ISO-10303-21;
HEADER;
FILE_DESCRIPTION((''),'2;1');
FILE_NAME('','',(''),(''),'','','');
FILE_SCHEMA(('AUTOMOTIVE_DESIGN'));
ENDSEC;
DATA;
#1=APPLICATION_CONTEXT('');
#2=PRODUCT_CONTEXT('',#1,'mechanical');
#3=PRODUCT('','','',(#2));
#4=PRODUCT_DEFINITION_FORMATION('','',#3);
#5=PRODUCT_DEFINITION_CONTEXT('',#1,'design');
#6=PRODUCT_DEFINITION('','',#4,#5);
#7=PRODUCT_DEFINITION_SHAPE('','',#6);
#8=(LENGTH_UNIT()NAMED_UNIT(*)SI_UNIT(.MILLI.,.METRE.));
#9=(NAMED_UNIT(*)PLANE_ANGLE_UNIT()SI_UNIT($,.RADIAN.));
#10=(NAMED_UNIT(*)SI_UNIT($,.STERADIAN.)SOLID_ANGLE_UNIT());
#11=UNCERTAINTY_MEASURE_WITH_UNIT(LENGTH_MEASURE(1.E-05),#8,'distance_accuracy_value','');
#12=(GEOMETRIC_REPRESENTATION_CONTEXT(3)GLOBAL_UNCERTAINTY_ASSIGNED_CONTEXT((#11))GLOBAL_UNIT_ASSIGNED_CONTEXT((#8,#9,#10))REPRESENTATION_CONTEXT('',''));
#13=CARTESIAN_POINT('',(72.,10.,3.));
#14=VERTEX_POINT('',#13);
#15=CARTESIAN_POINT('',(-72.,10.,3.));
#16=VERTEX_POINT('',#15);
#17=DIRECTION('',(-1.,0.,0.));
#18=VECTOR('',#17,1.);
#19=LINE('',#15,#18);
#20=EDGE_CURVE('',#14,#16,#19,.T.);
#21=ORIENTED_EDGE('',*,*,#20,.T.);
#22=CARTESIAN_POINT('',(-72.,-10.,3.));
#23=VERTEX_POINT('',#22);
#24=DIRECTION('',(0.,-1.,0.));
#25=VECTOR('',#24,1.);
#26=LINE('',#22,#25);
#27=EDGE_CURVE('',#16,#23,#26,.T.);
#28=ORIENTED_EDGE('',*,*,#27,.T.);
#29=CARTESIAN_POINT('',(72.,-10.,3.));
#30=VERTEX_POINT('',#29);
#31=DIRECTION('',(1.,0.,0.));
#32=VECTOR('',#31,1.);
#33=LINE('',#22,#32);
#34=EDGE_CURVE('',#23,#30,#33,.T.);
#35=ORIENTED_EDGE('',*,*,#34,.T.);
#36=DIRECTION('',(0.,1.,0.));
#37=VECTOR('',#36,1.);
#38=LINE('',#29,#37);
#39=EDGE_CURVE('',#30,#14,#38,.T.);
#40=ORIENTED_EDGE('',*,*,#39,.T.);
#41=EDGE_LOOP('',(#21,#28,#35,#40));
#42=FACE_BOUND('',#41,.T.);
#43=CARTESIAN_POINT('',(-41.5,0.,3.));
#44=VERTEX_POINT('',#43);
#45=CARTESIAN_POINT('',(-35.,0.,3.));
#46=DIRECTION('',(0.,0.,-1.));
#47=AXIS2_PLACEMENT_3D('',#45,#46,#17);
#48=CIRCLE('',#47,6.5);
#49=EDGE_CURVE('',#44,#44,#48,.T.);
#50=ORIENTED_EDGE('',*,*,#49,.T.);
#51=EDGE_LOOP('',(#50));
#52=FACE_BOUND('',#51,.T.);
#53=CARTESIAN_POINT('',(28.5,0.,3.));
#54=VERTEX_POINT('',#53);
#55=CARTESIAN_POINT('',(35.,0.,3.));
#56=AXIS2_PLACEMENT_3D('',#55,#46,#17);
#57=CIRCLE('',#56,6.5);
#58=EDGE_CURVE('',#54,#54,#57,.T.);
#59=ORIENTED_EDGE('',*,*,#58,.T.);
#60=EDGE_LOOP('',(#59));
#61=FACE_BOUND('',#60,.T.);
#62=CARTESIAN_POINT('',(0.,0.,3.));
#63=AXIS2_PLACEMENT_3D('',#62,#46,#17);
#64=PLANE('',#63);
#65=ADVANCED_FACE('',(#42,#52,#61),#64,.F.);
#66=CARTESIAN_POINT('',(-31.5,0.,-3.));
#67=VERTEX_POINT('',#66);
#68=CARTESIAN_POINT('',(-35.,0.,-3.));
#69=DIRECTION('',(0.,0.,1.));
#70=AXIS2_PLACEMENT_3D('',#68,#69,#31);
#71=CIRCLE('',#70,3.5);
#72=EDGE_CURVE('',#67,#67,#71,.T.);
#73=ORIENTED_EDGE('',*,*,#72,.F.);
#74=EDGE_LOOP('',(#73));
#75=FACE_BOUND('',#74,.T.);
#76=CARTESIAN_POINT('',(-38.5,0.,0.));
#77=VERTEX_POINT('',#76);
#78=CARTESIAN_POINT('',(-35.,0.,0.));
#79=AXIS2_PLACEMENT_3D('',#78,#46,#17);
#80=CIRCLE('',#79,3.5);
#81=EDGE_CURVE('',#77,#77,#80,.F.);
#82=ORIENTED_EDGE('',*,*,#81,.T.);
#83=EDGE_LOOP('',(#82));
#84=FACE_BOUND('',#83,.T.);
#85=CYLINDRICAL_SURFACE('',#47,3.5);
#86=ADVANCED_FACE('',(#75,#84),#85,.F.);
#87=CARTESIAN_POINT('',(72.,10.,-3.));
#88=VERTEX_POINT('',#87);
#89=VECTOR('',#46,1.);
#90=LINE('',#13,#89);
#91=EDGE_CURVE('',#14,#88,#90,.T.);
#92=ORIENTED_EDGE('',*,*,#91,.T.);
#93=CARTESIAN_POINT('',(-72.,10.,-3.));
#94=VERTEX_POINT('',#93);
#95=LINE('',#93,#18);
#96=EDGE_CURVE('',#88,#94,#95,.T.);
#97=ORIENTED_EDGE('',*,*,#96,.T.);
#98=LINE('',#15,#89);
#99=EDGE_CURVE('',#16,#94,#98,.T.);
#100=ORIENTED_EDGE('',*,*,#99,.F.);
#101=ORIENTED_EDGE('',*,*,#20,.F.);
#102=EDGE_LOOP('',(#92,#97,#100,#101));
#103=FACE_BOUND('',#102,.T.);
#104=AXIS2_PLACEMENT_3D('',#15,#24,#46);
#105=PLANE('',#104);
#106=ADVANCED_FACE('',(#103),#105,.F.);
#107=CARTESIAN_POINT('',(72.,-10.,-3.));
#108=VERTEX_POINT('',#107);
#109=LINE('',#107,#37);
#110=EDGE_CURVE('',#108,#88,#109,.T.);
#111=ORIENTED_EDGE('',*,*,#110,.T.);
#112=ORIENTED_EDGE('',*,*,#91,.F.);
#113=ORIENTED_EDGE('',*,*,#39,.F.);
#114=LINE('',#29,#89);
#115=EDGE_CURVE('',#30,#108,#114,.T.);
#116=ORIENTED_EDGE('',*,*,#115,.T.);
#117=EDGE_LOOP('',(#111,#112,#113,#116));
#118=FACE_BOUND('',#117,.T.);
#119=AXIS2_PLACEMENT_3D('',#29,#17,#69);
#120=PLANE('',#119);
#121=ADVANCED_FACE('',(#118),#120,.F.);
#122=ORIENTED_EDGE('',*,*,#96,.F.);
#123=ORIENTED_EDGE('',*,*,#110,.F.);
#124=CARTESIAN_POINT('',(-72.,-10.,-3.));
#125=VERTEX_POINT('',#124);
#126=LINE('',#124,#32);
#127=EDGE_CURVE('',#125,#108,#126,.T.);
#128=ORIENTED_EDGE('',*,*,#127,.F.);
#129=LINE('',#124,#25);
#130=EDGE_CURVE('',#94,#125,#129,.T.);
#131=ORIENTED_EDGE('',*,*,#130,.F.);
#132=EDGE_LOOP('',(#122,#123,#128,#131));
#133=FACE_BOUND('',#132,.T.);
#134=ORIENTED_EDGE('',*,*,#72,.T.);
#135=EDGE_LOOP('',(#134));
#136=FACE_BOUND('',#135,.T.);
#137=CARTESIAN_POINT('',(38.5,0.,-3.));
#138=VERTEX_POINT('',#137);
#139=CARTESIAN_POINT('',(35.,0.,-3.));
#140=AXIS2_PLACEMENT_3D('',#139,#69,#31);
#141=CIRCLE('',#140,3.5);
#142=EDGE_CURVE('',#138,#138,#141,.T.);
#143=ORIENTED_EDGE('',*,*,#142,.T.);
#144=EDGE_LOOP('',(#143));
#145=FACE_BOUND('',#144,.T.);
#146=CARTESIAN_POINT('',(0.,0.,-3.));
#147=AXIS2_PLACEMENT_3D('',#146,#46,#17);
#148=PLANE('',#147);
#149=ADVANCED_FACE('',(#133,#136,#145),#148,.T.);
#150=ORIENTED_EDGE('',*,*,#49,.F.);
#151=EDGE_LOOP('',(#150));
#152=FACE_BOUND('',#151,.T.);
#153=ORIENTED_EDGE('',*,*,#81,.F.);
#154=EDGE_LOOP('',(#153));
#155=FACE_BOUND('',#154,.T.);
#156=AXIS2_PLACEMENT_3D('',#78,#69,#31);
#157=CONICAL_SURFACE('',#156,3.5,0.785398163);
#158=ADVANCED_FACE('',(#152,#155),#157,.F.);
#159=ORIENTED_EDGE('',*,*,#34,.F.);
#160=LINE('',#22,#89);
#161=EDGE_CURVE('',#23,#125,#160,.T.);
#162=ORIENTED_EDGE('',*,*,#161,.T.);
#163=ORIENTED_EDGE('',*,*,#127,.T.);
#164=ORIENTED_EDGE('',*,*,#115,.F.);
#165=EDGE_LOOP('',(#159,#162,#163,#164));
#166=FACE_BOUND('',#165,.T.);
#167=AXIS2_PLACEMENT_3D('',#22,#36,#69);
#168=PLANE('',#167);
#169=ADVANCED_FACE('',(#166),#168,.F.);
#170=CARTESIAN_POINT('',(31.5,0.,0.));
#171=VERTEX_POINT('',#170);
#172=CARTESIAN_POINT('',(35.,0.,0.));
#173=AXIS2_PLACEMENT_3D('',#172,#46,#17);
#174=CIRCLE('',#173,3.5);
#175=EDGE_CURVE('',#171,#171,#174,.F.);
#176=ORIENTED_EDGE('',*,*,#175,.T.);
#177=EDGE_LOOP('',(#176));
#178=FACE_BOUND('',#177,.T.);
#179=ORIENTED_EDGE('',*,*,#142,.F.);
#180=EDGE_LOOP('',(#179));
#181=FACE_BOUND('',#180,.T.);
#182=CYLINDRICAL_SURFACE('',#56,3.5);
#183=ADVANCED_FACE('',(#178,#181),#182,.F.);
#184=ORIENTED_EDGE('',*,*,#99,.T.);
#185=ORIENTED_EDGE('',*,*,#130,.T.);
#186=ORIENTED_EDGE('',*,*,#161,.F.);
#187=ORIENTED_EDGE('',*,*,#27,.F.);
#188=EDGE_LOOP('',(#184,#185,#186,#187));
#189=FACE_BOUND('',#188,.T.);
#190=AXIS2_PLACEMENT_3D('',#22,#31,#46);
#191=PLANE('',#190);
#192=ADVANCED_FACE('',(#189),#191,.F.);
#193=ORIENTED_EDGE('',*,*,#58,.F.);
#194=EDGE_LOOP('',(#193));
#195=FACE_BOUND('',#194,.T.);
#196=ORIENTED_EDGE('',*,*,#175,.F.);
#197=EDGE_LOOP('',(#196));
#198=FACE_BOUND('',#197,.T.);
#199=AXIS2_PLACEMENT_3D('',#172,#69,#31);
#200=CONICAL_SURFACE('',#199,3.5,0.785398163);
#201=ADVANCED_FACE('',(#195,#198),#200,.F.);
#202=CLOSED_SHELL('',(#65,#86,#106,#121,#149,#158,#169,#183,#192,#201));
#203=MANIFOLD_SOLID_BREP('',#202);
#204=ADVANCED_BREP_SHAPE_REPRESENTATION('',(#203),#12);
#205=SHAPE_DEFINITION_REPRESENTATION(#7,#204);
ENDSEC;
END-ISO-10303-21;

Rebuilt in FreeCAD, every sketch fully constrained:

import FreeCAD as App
import Part
import Sketcher

V = App.Vector
Q = App.Units.Quantity


def edges_at(feature, points):
    """Names of the edges that pass closest to the given points."""
    edges = feature.Shape.Edges
    near = lambda p: min(range(len(edges)), key=lambda i: edges[i].distToShape(Part.Vertex(*p))[0])
    return sorted({f"Edge{near(p) + 1}" for p in points})

doc = App.newDocument("Part")
params = doc.addObject("Spreadsheet::Sheet", "Params")
for row, (alias, value) in enumerate([
    ("sketch1_diameter", "7 mm"),
    ("sketch1_width", "144 mm"),
    ("sketch1_height", "20 mm"),
    ("pad1_length", "6 mm"),
    ("chamfer_size", "3 mm"),
], start=1):
    params.set(f"A{row}", alias)
    params.set(f"B{row}", "=" + value)
    params.setAlias(f"B{row}", alias)

body = doc.addObject("PartDesign::Body", "Body")

sketch1 = doc.addObject("Sketcher::SketchObject", "Sketch")
body.addObject(sketch1)
sketch1.AttachmentSupport = (doc.XY_Plane, [""])
sketch1.MapMode = "FlatFace"
sketch1.addGeometry(Part.LineSegment(V(-72, 10, 0), V(-72, -10, 0)), False)
sketch1.addGeometry(Part.LineSegment(V(-72, -10, 0), V(72, -10, 0)), False)
sketch1.addGeometry(Part.LineSegment(V(72, -10, 0), V(72, 10, 0)), False)
sketch1.addGeometry(Part.LineSegment(V(72, 10, 0), V(-72, 10, 0)), False)
sketch1.addGeometry(Part.Circle(V(-35, 0, 0), V(0, 0, 1), 3.5), False)
sketch1.addGeometry(Part.Circle(V(35, 0, 0), V(0, 0, 1), 3.5), False)
sketch1.addConstraint(Sketcher.Constraint("Coincident", 0, 2, 1, 1))
sketch1.addConstraint(Sketcher.Constraint("Coincident", 1, 2, 2, 1))
sketch1.addConstraint(Sketcher.Constraint("Coincident", 2, 2, 3, 1))
sketch1.addConstraint(Sketcher.Constraint("Coincident", 3, 2, 0, 1))
sketch1.addConstraint(Sketcher.Constraint("Vertical", 0))
sketch1.addConstraint(Sketcher.Constraint("Horizontal", 1))
sketch1.addConstraint(Sketcher.Constraint("Vertical", 2))
sketch1.addConstraint(Sketcher.Constraint("Horizontal", 3))
sketch1.addConstraint(Sketcher.Constraint("Equal", 4, 5))
sketch1.addConstraint(Sketcher.Constraint("Symmetric", 4, 3, 5, 3, -1, 1))
sketch1.addConstraint(Sketcher.Constraint("Symmetric", 0, 2, 2, 2, -1, 1))
sketch1.addConstraint(Sketcher.Constraint("PointOnObject", 4, 3, -1))
sketch1.addConstraint(Sketcher.Constraint("Diameter", 4, Q("7 mm")))
sketch1.addConstraint(Sketcher.Constraint("DistanceX", 1, 1, 1, 2, Q("144 mm")))
sketch1.addConstraint(Sketcher.Constraint("DistanceY", 0, 2, 0, 1, Q("20 mm")))
sketch1.addConstraint(Sketcher.Constraint("DistanceX", 4, 3, -1, 1, Q("35 mm")))
sketch1.setExpression("Constraints[12]", "Params.sketch1_diameter")
sketch1.setExpression("Constraints[13]", "Params.sketch1_width")
sketch1.setExpression("Constraints[14]", "Params.sketch1_height")
pad1 = doc.addObject("PartDesign::Pad", "Pad")
body.addObject(pad1)
pad1.Profile = sketch1
pad1.setExpression("Length", "Params.pad1_length")
pad1.Midplane = True
doc.recompute()

chamfer = doc.addObject("PartDesign::Chamfer", "Chamfer")
body.addObject(chamfer)
chamfer.Base = (pad1, edges_at(pad1, [(31.5, 0, 3), (-38.5, 0, 3)]))
chamfer.setExpression("Size", "Params.chamfer_size")

doc.recompute()
